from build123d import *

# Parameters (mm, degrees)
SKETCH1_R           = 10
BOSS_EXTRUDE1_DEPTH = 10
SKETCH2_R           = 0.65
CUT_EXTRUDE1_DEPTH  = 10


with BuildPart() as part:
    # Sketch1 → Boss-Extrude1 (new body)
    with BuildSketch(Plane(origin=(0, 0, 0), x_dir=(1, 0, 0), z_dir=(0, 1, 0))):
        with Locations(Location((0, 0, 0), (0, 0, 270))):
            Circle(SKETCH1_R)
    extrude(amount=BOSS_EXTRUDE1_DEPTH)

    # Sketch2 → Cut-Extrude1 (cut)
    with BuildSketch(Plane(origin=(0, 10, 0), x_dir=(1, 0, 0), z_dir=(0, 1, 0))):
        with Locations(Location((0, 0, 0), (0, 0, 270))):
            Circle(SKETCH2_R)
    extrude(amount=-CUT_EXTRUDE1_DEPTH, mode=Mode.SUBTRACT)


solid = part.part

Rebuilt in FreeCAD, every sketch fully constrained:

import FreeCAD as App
import Part
import Sketcher

V = App.Vector

doc = App.newDocument("Part")
body = doc.addObject("PartDesign::Body", "Body")

sketch1 = body.newObject("Sketcher::SketchObject", "Sketch")
sketch1.AttachmentSupport = (doc.getObject("XZ_Plane"), [""])
sketch1.MapMode = "FlatFace"
sketch1.addGeometry(Part.Circle(V(0, 0, 0), V(0, 0, 1), 10), False)
sketch1.addConstraint(Sketcher.Constraint("Coincident", 0, 3, -1, 1))
sketch1.addConstraint(Sketcher.Constraint("Diameter", 0, 20.0))
pad1 = body.newObject("PartDesign::Pad", "Pad")
pad1.Profile = sketch1
pad1.Length = 10
pad1.Reversed = True

sketch2 = body.newObject("Sketcher::SketchObject", "Sketch001")
sketch2.AttachmentSupport = (doc.getObject("XZ_Plane"), [""])
sketch2.MapMode = "FlatFace"
sketch2.AttachmentOffset = App.Placement(V(0, 0, -10), App.Rotation())
sketch2.addGeometry(Part.Circle(V(0, 0, 0), V(0, 0, 1), 0.65), False)
sketch2.addConstraint(Sketcher.Constraint("Coincident", 0, 3, -1, 1))
sketch2.addConstraint(Sketcher.Constraint("Diameter", 0, 1.3))
pocket1 = body.newObject("PartDesign::Pocket", "Pocket")
pocket1.Profile = sketch2
pocket1.Length = 10
pocket1.Reversed = True

doc.recompute()
